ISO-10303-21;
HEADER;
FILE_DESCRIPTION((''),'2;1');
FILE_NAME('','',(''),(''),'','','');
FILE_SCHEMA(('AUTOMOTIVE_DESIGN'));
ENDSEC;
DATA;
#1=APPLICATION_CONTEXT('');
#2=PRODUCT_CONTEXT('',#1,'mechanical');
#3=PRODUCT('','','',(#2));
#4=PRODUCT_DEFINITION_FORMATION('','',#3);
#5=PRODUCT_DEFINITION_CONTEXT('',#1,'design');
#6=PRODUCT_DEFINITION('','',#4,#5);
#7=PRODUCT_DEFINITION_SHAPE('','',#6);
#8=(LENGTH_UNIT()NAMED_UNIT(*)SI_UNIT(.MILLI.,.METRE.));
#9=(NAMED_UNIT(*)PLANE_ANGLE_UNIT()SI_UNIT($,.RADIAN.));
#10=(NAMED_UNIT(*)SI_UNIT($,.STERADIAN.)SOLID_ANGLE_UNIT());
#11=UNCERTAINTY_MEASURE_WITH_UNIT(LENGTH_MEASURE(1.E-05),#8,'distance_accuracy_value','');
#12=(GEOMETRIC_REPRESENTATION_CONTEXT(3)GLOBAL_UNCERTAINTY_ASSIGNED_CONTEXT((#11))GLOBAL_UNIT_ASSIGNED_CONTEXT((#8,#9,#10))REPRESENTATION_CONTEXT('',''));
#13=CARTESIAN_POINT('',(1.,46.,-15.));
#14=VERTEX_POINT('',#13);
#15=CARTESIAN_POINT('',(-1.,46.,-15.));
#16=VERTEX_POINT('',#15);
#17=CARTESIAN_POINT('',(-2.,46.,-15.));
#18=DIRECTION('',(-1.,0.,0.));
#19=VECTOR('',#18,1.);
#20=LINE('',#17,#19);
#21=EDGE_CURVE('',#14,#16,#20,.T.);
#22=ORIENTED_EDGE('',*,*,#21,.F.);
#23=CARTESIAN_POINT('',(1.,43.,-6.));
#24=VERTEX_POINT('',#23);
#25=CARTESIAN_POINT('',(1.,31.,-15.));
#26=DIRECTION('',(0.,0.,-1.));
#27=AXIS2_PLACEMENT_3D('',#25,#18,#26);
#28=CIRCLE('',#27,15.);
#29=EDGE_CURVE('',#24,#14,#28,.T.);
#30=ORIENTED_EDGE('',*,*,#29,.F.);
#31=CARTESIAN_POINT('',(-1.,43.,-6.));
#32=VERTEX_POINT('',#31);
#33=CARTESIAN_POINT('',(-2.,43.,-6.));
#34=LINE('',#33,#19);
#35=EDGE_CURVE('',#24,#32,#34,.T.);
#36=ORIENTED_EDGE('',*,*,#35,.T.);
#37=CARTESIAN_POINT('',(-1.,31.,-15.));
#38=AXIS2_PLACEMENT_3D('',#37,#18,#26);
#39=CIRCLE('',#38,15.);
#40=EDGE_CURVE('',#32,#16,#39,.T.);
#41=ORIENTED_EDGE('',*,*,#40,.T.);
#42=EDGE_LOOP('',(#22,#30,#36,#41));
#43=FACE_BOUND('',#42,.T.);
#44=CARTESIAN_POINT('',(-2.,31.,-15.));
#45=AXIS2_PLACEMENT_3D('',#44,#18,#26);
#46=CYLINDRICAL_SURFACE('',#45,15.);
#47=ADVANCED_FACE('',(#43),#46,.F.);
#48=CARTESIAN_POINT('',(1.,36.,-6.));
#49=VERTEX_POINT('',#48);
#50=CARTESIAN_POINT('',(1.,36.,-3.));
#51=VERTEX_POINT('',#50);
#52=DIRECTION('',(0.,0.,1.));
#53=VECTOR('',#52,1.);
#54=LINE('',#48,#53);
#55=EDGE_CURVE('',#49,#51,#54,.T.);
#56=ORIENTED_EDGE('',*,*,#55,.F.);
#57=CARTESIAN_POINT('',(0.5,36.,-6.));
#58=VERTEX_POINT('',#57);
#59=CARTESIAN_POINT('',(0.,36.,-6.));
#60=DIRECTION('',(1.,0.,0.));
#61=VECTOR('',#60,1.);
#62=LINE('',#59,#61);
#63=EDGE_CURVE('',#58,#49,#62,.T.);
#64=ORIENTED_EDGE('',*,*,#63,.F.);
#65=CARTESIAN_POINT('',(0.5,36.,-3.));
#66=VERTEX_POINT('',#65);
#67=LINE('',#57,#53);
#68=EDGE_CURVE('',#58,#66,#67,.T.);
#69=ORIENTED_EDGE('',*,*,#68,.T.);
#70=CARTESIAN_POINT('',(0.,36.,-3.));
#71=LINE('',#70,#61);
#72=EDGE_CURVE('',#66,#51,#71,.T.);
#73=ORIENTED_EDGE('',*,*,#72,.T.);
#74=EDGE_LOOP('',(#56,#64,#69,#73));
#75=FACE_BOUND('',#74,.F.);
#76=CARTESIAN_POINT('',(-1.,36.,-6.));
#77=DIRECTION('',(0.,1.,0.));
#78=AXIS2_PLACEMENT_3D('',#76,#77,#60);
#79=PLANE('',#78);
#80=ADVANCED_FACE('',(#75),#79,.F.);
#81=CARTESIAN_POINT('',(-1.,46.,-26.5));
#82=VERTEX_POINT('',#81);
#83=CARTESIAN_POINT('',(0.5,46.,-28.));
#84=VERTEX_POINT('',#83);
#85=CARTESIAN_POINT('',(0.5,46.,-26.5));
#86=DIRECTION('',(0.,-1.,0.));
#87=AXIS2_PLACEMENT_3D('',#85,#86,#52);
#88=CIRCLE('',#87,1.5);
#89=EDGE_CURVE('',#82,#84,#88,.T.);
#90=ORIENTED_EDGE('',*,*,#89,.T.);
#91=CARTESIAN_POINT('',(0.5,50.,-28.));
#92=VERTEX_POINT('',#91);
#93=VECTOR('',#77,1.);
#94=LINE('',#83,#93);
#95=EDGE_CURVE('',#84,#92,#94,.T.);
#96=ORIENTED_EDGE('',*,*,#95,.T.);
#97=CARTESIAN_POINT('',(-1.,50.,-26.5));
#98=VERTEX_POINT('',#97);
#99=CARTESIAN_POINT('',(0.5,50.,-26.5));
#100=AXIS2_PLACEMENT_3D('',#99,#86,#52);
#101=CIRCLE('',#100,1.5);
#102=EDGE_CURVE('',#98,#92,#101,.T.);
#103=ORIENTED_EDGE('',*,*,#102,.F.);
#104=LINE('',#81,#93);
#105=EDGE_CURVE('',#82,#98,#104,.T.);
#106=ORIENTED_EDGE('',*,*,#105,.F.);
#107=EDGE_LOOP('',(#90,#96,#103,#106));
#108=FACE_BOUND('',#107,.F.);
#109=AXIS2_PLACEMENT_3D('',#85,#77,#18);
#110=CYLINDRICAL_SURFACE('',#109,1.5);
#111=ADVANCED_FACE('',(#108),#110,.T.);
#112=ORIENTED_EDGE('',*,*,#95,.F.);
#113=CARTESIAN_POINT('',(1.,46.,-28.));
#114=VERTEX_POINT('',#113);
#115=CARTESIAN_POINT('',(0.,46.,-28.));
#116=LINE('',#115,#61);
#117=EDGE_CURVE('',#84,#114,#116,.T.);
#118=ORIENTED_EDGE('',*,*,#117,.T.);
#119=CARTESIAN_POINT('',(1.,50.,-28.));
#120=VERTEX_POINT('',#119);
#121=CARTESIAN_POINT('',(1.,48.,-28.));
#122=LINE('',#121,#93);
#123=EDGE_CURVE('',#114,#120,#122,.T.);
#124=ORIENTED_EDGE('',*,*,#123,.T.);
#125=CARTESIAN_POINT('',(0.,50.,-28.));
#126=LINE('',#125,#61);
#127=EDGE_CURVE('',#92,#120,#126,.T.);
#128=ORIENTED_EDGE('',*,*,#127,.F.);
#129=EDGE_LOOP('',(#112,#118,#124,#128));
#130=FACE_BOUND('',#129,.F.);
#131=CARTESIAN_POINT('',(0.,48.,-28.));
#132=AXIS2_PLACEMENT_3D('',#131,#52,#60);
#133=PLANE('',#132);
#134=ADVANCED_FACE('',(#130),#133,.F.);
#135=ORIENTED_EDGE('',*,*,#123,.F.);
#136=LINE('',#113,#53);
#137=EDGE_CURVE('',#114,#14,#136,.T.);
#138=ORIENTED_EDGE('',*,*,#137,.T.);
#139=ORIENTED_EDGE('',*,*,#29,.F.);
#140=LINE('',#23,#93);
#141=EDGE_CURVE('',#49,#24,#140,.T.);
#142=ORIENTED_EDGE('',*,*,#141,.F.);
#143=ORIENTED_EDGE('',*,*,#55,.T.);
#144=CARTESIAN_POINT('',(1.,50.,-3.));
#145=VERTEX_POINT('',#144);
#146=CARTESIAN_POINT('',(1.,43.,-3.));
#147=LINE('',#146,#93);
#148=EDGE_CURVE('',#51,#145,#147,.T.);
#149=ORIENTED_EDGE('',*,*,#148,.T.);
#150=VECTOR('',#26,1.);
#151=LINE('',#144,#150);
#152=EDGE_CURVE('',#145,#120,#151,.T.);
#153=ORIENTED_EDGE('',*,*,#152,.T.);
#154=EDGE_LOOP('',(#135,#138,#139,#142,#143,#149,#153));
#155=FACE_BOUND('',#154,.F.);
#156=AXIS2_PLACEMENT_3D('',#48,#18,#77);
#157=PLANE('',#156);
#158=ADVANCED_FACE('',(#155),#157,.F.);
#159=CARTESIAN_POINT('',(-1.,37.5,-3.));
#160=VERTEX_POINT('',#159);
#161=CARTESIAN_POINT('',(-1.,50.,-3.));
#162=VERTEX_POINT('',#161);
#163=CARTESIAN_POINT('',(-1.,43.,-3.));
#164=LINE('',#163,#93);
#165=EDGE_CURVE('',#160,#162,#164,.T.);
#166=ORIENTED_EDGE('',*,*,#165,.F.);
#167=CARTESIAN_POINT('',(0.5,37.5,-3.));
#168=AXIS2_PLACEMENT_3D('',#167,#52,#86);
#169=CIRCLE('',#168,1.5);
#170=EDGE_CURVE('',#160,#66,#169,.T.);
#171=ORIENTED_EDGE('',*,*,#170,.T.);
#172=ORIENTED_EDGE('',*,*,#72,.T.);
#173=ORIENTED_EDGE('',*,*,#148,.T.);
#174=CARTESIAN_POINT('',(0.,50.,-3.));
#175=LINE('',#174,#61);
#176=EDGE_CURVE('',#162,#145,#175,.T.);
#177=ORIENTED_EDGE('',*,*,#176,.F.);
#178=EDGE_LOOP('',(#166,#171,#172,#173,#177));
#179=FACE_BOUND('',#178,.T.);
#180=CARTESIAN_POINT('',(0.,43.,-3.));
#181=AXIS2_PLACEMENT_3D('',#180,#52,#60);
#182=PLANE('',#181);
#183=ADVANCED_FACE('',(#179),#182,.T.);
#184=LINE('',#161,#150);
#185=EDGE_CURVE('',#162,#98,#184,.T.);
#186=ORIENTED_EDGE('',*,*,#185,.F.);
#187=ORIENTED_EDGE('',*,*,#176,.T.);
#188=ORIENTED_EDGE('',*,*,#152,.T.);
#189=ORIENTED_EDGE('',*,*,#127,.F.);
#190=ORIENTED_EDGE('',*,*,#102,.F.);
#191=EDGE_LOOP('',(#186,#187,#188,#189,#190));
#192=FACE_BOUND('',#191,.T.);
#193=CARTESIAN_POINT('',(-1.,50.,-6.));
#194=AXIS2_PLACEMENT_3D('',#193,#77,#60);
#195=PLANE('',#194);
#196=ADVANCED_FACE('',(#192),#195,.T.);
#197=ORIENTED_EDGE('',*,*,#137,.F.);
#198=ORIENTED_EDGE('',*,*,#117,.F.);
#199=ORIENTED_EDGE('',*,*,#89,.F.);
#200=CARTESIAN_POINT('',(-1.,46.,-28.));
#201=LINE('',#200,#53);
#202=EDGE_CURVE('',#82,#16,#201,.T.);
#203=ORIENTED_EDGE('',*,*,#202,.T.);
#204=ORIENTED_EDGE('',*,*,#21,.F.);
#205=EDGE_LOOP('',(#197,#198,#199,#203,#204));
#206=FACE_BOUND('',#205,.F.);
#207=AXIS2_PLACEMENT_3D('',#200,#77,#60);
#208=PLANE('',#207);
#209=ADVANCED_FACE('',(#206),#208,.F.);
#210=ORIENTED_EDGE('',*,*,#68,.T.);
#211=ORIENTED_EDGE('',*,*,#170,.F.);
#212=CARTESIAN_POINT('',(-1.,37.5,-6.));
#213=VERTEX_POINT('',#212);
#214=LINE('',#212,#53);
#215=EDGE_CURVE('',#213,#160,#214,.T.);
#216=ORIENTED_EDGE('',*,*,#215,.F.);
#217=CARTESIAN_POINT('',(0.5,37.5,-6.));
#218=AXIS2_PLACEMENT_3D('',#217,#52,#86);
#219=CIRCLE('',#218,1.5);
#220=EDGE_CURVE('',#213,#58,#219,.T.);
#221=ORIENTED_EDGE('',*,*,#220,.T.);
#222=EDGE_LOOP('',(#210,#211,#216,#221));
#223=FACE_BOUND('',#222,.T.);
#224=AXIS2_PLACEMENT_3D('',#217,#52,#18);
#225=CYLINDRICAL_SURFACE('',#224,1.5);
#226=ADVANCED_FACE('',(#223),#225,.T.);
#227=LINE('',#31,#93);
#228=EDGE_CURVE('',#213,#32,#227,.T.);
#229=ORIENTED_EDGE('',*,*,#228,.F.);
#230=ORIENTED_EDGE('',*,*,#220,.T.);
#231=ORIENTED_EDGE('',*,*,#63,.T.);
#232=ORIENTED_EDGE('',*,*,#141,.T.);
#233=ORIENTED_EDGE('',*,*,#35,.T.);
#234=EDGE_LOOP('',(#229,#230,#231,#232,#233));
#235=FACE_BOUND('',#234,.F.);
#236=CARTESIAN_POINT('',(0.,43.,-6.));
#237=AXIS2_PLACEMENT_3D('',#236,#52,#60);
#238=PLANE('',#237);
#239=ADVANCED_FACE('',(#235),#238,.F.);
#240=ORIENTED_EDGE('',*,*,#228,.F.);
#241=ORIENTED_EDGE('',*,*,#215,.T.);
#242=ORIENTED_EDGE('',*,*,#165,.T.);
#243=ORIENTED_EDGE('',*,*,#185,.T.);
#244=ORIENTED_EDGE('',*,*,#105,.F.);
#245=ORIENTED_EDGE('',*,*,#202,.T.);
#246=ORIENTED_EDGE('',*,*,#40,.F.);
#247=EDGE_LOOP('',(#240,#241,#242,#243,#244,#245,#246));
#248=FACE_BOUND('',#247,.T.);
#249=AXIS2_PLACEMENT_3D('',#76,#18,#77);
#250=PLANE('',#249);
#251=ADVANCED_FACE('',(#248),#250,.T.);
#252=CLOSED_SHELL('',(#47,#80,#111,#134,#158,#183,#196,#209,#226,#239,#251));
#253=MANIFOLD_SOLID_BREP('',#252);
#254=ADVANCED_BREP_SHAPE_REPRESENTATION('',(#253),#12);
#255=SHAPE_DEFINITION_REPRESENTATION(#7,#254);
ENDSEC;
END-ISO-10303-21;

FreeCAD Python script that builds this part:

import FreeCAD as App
import Part
import Sketcher


def edges_at(feature, points):
    """Names of the edges that pass closest to the given points."""
    edges = feature.Shape.Edges
    near = lambda p: min(range(len(edges)), key=lambda i: edges[i].distToShape(Part.Vertex(*p))[0])
    return sorted({f"Edge{near(p) + 1}" for p in points})

doc = App.newDocument("Part")
body = doc.addObject("PartDesign::Body", "Body")

# Sketch on XY plane
sketch1 = body.newObject("Sketcher::SketchObject", "Sketch")
sketch1.AttachmentSupport = (doc.getObject("XY_Plane"), [""])
sketch1.MapMode = "FlatFace"
sketch1.AttachmentOffset = App.Placement(App.Vector(0, 0, -28), App.Rotation())
sketch1.addGeometry([
    Part.LineSegment(App.Vector(-1, 50, 0), App.Vector(-1, 46, 0)),
    Part.LineSegment(App.Vector(-1, 46, 0), App.Vector(1, 46, 0)),
    Part.LineSegment(App.Vector(1, 46, 0), App.Vector(1, 50, 0)),
    Part.LineSegment(App.Vector(1, 50, 0), App.Vector(-1, 50, 0)),
], False)
sketch1.addConstraint([
    Sketcher.Constraint("Coincident", 0, 2, 1, 1),
    Sketcher.Constraint("Coincident", 1, 2, 2, 1),
    Sketcher.Constraint("Coincident", 2, 2, 3, 1),
    Sketcher.Constraint("Coincident", 3, 2, 0, 1),
    Sketcher.Constraint("Vertical", 0),
    Sketcher.Constraint("Horizontal", 1),
    Sketcher.Constraint("Vertical", 2),
    Sketcher.Constraint("Horizontal", 3),
    Sketcher.Constraint("DistanceX", 1, 1, 1, 2, 2.0),
    Sketcher.Constraint("DistanceY", 0, 2, 0, 1, 4.0),
    Sketcher.Constraint("DistanceX", 0, 2, -1, 1, 1.0),
    Sketcher.Constraint("DistanceY", -1, 1, 0, 2, 46.0),
])
pad1 = body.newObject("PartDesign::Pad", "Pad")
pad1.Profile = sketch1
pad1.Length = 13
body2 = doc.addObject("PartDesign::Body", "Body001")

# Sketch on XY plane
sketch2 = body2.newObject("Sketcher::SketchObject", "Sketch001")
sketch2.AttachmentSupport = (doc.getObject("XY_Plane001"), [""])
sketch2.MapMode = "FlatFace"
sketch2.AttachmentOffset = App.Placement(App.Vector(0, 0, -6), App.Rotation())
sketch2.addGeometry([
    Part.LineSegment(App.Vector(-1, 50, 0), App.Vector(-1, 36, 0)),
    Part.LineSegment(App.Vector(-1, 36, 0), App.Vector(1, 36, 0)),
    Part.LineSegment(App.Vector(1, 36, 0), App.Vector(1, 50, 0)),
    Part.LineSegment(App.Vector(1, 50, 0), App.Vector(-1, 50, 0)),
], False)
sketch2.addConstraint([
    Sketcher.Constraint("Coincident", 0, 2, 1, 1),
    Sketcher.Constraint("Coincident", 1, 2, 2, 1),
    Sketcher.Constraint("Coincident", 2, 2, 3, 1),
    Sketcher.Constraint("Coincident", 3, 2, 0, 1),
    Sketcher.Constraint("Vertical", 0),
    Sketcher.Constraint("Horizontal", 1),
    Sketcher.Constraint("Vertical", 2),
    Sketcher.Constraint("Horizontal", 3),
    Sketcher.Constraint("DistanceX", 1, 1, 1, 2, 2.0),
    Sketcher.Constraint("DistanceY", 0, 2, 0, 1, 14.0),
    Sketcher.Constraint("DistanceX", 0, 2, -1, 1, 1.0),
    Sketcher.Constraint("DistanceY", -1, 1, 0, 2, 36.0),
])
pad2 = body2.newObject("PartDesign::Pad", "Pad001")
pad2.Profile = sketch2
pad2.Length = 3
body3 = doc.addObject("PartDesign::Body", "Body002")

# Sketch on YZ plane
sketch3 = body3.newObject("Sketcher::SketchObject", "Sketch002")
sketch3.AttachmentSupport = (doc.getObject("YZ_Plane002"), [""])
sketch3.MapMode = "FlatFace"
sketch3.addGeometry(Part.Circle(App.Vector(35, -15, 0), App.Vector(0, 0, 1), 15), False)
sketch3.addConstraint([
    Sketcher.Constraint("Diameter", 0, 30.0),
    Sketcher.Constraint("DistanceX", -1, 1, 0, 3, 35.0),
    Sketcher.Constraint("DistanceY", 0, 3, -1, 1, 15.0),
])
pad3 = body3.newObject("PartDesign::Pad", "Pad002")
pad3.Profile = sketch3
pad3.Length = 4
body4 = doc.addObject("PartDesign::Body", "Body003")

# Sketch on XY plane
sketch4 = body4.newObject("Sketcher::SketchObject", "Sketch003")
sketch4.AttachmentSupport = (doc.getObject("XY_Plane003"), [""])
sketch4.MapMode = "FlatFace"
sketch4.AttachmentOffset = App.Placement(App.Vector(0, 0, -15), App.Rotation())
sketch4.addGeometry([
    Part.LineSegment(App.Vector(1, 54, 0), App.Vector(1, 44, 0)),
    Part.LineSegment(App.Vector(1, 44, 0), App.Vector(3, 44, 0)),
    Part.LineSegment(App.Vector(3, 44, 0), App.Vector(3, 54, 0)),
    Part.LineSegment(App.Vector(3, 54, 0), App.Vector(1, 54, 0)),
], False)
sketch4.addConstraint([
    Sketcher.Constraint("Coincident", 0, 2, 1, 1),
    Sketcher.Constraint("Coincident", 1, 2, 2, 1),
    Sketcher.Constraint("Coincident", 2, 2, 3, 1),
    Sketcher.Constraint("Coincident", 3, 2, 0, 1),
    Sketcher.Constraint("Vertical", 0),
    Sketcher.Constraint("Horizontal", 1),
    Sketcher.Constraint("Vertical", 2),
    Sketcher.Constraint("Horizontal", 3),
    Sketcher.Constraint("DistanceX", 1, 1, 1, 2, 2.0),
    Sketcher.Constraint("DistanceY", 0, 2, 0, 1, 10.0),
    Sketcher.Constraint("DistanceX", -1, 1, 0, 2, 1.0),
    Sketcher.Constraint("DistanceY", -1, 1, 0, 2, 44.0),
])
pad4 = body4.newObject("PartDesign::Pad", "Pad003")
pad4.Profile = sketch4
pad4.Length = 9
doc.recompute()

boolean = body4.newObject("PartDesign::Boolean", "Boolean")
boolean.Type = "Cut"
boolean.addObjects([body3])
body5 = doc.addObject("PartDesign::Body", "Body004")
doc.recompute()

body4.Placement = App.Placement(App.Vector(-2, -4, 0), App.Rotation(App.Vector(0, 0, 1), 0))
boolean2 = body5.newObject("PartDesign::Boolean", "Boolean001")
boolean2.Type = "Fuse"
boolean2.addObjects([body4])
doc.recompute()

boolean3 = body5.newObject("PartDesign::Boolean", "Boolean002")
boolean3.Type = "Fuse"
boolean3.addObjects([body])
doc.recompute()

boolean4 = body5.newObject("PartDesign::Boolean", "Boolean003")
boolean4.Type = "Fuse"
boolean4.addObjects([body2])
doc.recompute()

fillet = body5.newObject("PartDesign::Fillet", "Fillet")
fillet.Base = (boolean4, edges_at(boolean4, [(-1, 48, -28), (-1, 36, -4.5)]))
fillet.Radius = 1.5

doc.recompute()
